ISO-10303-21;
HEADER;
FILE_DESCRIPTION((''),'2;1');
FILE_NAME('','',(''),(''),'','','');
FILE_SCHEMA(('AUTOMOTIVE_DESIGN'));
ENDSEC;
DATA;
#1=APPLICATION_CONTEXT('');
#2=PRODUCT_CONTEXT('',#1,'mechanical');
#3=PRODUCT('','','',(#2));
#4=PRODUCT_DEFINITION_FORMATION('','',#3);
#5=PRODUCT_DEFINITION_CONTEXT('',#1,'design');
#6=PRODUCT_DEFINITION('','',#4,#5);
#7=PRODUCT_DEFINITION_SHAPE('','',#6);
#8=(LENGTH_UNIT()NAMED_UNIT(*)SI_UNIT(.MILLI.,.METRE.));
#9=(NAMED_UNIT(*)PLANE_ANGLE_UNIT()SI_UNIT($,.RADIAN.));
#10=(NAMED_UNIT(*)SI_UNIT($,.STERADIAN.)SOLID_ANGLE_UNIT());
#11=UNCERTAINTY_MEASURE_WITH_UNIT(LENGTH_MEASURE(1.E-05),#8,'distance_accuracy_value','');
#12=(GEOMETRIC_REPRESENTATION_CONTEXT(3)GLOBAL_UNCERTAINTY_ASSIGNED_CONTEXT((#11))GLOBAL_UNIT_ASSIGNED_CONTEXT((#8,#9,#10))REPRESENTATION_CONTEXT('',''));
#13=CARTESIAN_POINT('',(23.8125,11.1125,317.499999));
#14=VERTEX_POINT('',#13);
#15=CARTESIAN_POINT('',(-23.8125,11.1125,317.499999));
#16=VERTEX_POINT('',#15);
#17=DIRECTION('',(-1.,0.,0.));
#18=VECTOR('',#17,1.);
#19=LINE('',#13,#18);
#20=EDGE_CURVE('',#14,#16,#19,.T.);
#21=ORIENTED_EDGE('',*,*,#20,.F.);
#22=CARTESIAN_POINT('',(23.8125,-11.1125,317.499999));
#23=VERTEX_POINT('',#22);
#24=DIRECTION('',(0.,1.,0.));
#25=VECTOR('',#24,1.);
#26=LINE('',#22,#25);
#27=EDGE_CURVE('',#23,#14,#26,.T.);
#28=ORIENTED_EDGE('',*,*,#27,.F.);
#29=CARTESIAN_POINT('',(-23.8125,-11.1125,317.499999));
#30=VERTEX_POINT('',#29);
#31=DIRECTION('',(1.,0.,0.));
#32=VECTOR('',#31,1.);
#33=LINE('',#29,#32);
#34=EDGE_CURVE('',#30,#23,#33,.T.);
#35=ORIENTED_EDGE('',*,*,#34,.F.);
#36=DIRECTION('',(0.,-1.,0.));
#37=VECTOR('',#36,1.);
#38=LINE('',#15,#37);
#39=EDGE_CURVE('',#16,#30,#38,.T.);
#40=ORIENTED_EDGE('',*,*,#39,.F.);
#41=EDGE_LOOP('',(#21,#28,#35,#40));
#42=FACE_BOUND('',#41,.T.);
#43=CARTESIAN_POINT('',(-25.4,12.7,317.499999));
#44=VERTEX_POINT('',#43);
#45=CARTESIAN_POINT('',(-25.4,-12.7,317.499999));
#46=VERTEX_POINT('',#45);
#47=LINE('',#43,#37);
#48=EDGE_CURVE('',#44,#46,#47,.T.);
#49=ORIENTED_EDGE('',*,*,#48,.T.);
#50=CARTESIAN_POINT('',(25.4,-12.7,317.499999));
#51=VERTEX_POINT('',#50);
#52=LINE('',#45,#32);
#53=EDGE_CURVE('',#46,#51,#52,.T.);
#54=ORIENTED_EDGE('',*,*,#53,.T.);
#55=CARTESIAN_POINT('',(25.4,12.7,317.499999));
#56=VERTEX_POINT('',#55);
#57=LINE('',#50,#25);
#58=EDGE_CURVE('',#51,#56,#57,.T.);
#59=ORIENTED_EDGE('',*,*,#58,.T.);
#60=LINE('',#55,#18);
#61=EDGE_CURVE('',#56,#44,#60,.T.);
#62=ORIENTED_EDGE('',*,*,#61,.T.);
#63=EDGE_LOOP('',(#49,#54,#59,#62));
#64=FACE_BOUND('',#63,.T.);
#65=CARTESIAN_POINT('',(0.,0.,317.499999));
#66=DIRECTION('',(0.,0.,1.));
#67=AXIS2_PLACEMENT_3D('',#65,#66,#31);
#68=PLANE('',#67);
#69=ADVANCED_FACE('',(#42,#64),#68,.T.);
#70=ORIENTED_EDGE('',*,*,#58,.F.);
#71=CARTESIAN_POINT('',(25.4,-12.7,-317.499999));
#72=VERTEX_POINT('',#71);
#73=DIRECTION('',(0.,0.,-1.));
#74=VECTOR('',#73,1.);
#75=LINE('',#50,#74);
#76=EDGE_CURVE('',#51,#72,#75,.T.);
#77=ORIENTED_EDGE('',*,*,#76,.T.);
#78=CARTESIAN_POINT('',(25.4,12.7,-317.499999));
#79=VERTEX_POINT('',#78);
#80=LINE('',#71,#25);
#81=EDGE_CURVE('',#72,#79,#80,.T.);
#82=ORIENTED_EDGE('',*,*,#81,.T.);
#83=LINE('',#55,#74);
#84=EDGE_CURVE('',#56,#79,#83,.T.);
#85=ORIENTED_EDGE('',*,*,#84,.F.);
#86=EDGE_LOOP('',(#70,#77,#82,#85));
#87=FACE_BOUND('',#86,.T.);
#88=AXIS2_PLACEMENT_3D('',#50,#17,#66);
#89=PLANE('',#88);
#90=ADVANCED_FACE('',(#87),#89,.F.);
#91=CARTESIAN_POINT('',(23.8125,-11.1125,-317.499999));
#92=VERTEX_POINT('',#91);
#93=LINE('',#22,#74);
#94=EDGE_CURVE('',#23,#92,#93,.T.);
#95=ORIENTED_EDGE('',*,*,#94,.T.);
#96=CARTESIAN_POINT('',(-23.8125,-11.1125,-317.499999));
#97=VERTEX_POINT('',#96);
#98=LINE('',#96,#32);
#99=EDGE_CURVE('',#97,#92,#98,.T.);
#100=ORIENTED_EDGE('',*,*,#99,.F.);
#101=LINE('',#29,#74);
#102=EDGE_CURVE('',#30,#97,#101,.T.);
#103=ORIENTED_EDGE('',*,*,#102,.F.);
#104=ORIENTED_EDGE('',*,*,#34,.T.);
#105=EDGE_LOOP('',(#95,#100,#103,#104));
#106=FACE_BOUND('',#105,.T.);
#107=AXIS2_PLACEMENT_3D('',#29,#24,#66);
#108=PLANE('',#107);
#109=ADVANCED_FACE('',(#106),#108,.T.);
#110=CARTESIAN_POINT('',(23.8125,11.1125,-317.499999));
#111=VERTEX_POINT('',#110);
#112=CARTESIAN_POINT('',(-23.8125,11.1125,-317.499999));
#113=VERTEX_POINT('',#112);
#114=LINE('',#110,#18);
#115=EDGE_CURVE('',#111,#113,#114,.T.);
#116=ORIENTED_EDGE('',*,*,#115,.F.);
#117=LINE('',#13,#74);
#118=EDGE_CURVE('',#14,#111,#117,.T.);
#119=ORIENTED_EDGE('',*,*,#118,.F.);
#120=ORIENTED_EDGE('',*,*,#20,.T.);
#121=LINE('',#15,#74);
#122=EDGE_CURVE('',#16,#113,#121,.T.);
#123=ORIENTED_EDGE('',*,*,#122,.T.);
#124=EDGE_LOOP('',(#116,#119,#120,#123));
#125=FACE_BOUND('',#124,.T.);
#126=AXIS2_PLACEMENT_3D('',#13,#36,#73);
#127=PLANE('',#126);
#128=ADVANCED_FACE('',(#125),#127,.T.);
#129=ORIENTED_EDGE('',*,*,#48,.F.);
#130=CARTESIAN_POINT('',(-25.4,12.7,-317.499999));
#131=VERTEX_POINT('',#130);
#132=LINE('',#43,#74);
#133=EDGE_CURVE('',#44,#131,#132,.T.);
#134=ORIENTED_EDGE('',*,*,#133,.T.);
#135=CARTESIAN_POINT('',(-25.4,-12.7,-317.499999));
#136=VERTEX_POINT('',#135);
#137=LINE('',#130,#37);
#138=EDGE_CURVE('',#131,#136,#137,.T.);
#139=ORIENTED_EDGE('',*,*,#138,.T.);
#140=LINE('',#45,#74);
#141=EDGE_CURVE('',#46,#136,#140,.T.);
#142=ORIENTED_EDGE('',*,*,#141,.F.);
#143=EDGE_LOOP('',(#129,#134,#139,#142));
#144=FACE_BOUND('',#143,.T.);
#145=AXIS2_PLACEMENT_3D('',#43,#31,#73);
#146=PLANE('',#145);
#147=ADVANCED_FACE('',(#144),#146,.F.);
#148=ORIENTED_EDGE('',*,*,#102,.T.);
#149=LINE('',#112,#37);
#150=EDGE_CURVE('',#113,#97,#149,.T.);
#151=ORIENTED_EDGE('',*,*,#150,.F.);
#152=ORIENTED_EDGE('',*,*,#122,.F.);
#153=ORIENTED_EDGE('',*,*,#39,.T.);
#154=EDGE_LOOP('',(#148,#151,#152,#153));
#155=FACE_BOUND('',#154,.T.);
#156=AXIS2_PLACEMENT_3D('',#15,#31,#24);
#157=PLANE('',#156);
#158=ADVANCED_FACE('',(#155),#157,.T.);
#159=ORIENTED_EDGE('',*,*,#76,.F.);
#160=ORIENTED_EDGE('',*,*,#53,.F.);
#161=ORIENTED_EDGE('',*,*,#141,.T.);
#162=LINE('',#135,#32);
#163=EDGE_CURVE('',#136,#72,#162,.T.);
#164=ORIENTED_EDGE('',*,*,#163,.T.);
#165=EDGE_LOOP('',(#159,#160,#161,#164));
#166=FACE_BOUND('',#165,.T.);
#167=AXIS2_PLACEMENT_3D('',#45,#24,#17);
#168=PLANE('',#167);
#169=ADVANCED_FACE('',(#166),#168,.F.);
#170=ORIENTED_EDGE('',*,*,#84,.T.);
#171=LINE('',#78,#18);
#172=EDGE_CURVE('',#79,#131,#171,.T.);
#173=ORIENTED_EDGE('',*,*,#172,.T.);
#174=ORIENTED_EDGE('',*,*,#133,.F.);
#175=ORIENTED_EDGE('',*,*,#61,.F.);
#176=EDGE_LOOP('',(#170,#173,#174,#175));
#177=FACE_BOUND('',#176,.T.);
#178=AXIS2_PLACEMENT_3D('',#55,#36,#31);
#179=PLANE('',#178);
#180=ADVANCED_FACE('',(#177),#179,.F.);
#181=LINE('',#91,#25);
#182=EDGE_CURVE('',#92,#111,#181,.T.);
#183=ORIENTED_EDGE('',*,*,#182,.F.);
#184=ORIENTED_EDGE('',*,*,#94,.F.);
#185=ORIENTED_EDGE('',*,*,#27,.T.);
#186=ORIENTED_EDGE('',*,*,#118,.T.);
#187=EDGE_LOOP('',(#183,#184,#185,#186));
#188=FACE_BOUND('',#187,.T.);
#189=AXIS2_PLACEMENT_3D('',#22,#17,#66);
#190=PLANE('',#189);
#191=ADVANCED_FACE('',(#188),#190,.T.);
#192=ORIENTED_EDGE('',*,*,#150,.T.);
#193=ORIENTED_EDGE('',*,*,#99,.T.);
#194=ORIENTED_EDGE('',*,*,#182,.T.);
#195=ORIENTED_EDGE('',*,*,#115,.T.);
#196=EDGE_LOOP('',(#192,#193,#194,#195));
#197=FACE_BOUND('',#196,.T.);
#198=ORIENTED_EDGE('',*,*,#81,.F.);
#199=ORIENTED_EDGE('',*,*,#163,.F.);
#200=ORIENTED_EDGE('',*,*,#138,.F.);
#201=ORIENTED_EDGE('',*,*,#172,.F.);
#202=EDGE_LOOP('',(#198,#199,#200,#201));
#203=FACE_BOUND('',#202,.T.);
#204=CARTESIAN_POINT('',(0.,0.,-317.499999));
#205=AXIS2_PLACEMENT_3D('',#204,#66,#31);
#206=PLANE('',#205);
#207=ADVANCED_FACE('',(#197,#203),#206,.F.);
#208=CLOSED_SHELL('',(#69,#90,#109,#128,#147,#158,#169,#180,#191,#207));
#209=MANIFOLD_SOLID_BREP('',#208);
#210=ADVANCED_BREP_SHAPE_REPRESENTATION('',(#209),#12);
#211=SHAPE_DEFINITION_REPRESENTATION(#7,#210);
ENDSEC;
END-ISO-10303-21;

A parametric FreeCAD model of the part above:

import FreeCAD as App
import Part
import Sketcher
Q = App.Units.Quantity

doc = App.newDocument("Part")
body = doc.addObject("PartDesign::Body", "Body")

# Sketch on XY plane
sketch1 = body.newObject("Sketcher::SketchObject", "Sketch")
sketch1.AttachmentSupport = (doc.getObject("XY_Plane"), [""])
sketch1.MapMode = "FlatFace"
sketch1.addGeometry(Part.LineSegment(App.Vector(-25, 13, 0), App.Vector(-25, -13, 0)), False)
sketch1.addGeometry(Part.LineSegment(App.Vector(-25, -13, 0), App.Vector(25, -13, 0)), False)
sketch1.addGeometry(Part.LineSegment(App.Vector(25, -13, 0), App.Vector(25, 13, 0)), False)
sketch1.addGeometry(Part.LineSegment(App.Vector(25, 13, 0), App.Vector(-25, 13, 0)), False)
sketch1.addGeometry(Part.LineSegment(App.Vector(24, -11, 0), App.Vector(-24, -11, 0)), False)
sketch1.addGeometry(Part.LineSegment(App.Vector(-24, -11, 0), App.Vector(-24, 11, 0)), False)
sketch1.addGeometry(Part.LineSegment(App.Vector(-24, 11, 0), App.Vector(24, 11, 0)), False)
sketch1.addGeometry(Part.LineSegment(App.Vector(24, 11, 0), App.Vector(24, -11, 0)), False)
sketch1.addConstraint(Sketcher.Constraint("Coincident", 0, 2, 1, 1))
sketch1.addConstraint(Sketcher.Constraint("Coincident", 1, 2, 2, 1))
sketch1.addConstraint(Sketcher.Constraint("Coincident", 2, 2, 3, 1))
sketch1.addConstraint(Sketcher.Constraint("Coincident", 3, 2, 0, 1))
sketch1.addConstraint(Sketcher.Constraint("Coincident", 4, 2, 5, 1))
sketch1.addConstraint(Sketcher.Constraint("Coincident", 5, 2, 6, 1))
sketch1.addConstraint(Sketcher.Constraint("Coincident", 6, 2, 7, 1))
sketch1.addConstraint(Sketcher.Constraint("Coincident", 7, 2, 4, 1))
sketch1.addConstraint(Sketcher.Constraint("Vertical", 0))
sketch1.addConstraint(Sketcher.Constraint("Horizontal", 1))
sketch1.addConstraint(Sketcher.Constraint("Vertical", 2))
sketch1.addConstraint(Sketcher.Constraint("Horizontal", 3))
sketch1.addConstraint(Sketcher.Constraint("Horizontal", 4))
sketch1.addConstraint(Sketcher.Constraint("Vertical", 5))
sketch1.addConstraint(Sketcher.Constraint("Horizontal", 6))
sketch1.addConstraint(Sketcher.Constraint("Vertical", 7))
sketch1.addConstraint(Sketcher.Constraint("Symmetric", 0, 2, 2, 2, -1, 1))
sketch1.addConstraint(Sketcher.Constraint("Symmetric", 4, 2, 6, 2, -1, 1))
sketch1.addConstraint(Sketcher.Constraint("DistanceX", 1, 1, 1, 2, Q("2 in")))
sketch1.addConstraint(Sketcher.Constraint("DistanceY", 0, 2, 0, 1, Q("1 in")))
sketch1.addConstraint(Sketcher.Constraint("DistanceX", 4, 2, 4, 1, Q("1.875 in")))
sketch1.addConstraint(Sketcher.Constraint("DistanceY", 5, 1, 5, 2, Q("0.875 in")))
pad1 = body.newObject("PartDesign::Pad", "Pad")
pad1.Profile = sketch1
pad1.Type = "TwoLengths"
pad1.Length = Q("12.5 in")
pad1.Length2 = Q("12.5 in")

doc.recompute()
